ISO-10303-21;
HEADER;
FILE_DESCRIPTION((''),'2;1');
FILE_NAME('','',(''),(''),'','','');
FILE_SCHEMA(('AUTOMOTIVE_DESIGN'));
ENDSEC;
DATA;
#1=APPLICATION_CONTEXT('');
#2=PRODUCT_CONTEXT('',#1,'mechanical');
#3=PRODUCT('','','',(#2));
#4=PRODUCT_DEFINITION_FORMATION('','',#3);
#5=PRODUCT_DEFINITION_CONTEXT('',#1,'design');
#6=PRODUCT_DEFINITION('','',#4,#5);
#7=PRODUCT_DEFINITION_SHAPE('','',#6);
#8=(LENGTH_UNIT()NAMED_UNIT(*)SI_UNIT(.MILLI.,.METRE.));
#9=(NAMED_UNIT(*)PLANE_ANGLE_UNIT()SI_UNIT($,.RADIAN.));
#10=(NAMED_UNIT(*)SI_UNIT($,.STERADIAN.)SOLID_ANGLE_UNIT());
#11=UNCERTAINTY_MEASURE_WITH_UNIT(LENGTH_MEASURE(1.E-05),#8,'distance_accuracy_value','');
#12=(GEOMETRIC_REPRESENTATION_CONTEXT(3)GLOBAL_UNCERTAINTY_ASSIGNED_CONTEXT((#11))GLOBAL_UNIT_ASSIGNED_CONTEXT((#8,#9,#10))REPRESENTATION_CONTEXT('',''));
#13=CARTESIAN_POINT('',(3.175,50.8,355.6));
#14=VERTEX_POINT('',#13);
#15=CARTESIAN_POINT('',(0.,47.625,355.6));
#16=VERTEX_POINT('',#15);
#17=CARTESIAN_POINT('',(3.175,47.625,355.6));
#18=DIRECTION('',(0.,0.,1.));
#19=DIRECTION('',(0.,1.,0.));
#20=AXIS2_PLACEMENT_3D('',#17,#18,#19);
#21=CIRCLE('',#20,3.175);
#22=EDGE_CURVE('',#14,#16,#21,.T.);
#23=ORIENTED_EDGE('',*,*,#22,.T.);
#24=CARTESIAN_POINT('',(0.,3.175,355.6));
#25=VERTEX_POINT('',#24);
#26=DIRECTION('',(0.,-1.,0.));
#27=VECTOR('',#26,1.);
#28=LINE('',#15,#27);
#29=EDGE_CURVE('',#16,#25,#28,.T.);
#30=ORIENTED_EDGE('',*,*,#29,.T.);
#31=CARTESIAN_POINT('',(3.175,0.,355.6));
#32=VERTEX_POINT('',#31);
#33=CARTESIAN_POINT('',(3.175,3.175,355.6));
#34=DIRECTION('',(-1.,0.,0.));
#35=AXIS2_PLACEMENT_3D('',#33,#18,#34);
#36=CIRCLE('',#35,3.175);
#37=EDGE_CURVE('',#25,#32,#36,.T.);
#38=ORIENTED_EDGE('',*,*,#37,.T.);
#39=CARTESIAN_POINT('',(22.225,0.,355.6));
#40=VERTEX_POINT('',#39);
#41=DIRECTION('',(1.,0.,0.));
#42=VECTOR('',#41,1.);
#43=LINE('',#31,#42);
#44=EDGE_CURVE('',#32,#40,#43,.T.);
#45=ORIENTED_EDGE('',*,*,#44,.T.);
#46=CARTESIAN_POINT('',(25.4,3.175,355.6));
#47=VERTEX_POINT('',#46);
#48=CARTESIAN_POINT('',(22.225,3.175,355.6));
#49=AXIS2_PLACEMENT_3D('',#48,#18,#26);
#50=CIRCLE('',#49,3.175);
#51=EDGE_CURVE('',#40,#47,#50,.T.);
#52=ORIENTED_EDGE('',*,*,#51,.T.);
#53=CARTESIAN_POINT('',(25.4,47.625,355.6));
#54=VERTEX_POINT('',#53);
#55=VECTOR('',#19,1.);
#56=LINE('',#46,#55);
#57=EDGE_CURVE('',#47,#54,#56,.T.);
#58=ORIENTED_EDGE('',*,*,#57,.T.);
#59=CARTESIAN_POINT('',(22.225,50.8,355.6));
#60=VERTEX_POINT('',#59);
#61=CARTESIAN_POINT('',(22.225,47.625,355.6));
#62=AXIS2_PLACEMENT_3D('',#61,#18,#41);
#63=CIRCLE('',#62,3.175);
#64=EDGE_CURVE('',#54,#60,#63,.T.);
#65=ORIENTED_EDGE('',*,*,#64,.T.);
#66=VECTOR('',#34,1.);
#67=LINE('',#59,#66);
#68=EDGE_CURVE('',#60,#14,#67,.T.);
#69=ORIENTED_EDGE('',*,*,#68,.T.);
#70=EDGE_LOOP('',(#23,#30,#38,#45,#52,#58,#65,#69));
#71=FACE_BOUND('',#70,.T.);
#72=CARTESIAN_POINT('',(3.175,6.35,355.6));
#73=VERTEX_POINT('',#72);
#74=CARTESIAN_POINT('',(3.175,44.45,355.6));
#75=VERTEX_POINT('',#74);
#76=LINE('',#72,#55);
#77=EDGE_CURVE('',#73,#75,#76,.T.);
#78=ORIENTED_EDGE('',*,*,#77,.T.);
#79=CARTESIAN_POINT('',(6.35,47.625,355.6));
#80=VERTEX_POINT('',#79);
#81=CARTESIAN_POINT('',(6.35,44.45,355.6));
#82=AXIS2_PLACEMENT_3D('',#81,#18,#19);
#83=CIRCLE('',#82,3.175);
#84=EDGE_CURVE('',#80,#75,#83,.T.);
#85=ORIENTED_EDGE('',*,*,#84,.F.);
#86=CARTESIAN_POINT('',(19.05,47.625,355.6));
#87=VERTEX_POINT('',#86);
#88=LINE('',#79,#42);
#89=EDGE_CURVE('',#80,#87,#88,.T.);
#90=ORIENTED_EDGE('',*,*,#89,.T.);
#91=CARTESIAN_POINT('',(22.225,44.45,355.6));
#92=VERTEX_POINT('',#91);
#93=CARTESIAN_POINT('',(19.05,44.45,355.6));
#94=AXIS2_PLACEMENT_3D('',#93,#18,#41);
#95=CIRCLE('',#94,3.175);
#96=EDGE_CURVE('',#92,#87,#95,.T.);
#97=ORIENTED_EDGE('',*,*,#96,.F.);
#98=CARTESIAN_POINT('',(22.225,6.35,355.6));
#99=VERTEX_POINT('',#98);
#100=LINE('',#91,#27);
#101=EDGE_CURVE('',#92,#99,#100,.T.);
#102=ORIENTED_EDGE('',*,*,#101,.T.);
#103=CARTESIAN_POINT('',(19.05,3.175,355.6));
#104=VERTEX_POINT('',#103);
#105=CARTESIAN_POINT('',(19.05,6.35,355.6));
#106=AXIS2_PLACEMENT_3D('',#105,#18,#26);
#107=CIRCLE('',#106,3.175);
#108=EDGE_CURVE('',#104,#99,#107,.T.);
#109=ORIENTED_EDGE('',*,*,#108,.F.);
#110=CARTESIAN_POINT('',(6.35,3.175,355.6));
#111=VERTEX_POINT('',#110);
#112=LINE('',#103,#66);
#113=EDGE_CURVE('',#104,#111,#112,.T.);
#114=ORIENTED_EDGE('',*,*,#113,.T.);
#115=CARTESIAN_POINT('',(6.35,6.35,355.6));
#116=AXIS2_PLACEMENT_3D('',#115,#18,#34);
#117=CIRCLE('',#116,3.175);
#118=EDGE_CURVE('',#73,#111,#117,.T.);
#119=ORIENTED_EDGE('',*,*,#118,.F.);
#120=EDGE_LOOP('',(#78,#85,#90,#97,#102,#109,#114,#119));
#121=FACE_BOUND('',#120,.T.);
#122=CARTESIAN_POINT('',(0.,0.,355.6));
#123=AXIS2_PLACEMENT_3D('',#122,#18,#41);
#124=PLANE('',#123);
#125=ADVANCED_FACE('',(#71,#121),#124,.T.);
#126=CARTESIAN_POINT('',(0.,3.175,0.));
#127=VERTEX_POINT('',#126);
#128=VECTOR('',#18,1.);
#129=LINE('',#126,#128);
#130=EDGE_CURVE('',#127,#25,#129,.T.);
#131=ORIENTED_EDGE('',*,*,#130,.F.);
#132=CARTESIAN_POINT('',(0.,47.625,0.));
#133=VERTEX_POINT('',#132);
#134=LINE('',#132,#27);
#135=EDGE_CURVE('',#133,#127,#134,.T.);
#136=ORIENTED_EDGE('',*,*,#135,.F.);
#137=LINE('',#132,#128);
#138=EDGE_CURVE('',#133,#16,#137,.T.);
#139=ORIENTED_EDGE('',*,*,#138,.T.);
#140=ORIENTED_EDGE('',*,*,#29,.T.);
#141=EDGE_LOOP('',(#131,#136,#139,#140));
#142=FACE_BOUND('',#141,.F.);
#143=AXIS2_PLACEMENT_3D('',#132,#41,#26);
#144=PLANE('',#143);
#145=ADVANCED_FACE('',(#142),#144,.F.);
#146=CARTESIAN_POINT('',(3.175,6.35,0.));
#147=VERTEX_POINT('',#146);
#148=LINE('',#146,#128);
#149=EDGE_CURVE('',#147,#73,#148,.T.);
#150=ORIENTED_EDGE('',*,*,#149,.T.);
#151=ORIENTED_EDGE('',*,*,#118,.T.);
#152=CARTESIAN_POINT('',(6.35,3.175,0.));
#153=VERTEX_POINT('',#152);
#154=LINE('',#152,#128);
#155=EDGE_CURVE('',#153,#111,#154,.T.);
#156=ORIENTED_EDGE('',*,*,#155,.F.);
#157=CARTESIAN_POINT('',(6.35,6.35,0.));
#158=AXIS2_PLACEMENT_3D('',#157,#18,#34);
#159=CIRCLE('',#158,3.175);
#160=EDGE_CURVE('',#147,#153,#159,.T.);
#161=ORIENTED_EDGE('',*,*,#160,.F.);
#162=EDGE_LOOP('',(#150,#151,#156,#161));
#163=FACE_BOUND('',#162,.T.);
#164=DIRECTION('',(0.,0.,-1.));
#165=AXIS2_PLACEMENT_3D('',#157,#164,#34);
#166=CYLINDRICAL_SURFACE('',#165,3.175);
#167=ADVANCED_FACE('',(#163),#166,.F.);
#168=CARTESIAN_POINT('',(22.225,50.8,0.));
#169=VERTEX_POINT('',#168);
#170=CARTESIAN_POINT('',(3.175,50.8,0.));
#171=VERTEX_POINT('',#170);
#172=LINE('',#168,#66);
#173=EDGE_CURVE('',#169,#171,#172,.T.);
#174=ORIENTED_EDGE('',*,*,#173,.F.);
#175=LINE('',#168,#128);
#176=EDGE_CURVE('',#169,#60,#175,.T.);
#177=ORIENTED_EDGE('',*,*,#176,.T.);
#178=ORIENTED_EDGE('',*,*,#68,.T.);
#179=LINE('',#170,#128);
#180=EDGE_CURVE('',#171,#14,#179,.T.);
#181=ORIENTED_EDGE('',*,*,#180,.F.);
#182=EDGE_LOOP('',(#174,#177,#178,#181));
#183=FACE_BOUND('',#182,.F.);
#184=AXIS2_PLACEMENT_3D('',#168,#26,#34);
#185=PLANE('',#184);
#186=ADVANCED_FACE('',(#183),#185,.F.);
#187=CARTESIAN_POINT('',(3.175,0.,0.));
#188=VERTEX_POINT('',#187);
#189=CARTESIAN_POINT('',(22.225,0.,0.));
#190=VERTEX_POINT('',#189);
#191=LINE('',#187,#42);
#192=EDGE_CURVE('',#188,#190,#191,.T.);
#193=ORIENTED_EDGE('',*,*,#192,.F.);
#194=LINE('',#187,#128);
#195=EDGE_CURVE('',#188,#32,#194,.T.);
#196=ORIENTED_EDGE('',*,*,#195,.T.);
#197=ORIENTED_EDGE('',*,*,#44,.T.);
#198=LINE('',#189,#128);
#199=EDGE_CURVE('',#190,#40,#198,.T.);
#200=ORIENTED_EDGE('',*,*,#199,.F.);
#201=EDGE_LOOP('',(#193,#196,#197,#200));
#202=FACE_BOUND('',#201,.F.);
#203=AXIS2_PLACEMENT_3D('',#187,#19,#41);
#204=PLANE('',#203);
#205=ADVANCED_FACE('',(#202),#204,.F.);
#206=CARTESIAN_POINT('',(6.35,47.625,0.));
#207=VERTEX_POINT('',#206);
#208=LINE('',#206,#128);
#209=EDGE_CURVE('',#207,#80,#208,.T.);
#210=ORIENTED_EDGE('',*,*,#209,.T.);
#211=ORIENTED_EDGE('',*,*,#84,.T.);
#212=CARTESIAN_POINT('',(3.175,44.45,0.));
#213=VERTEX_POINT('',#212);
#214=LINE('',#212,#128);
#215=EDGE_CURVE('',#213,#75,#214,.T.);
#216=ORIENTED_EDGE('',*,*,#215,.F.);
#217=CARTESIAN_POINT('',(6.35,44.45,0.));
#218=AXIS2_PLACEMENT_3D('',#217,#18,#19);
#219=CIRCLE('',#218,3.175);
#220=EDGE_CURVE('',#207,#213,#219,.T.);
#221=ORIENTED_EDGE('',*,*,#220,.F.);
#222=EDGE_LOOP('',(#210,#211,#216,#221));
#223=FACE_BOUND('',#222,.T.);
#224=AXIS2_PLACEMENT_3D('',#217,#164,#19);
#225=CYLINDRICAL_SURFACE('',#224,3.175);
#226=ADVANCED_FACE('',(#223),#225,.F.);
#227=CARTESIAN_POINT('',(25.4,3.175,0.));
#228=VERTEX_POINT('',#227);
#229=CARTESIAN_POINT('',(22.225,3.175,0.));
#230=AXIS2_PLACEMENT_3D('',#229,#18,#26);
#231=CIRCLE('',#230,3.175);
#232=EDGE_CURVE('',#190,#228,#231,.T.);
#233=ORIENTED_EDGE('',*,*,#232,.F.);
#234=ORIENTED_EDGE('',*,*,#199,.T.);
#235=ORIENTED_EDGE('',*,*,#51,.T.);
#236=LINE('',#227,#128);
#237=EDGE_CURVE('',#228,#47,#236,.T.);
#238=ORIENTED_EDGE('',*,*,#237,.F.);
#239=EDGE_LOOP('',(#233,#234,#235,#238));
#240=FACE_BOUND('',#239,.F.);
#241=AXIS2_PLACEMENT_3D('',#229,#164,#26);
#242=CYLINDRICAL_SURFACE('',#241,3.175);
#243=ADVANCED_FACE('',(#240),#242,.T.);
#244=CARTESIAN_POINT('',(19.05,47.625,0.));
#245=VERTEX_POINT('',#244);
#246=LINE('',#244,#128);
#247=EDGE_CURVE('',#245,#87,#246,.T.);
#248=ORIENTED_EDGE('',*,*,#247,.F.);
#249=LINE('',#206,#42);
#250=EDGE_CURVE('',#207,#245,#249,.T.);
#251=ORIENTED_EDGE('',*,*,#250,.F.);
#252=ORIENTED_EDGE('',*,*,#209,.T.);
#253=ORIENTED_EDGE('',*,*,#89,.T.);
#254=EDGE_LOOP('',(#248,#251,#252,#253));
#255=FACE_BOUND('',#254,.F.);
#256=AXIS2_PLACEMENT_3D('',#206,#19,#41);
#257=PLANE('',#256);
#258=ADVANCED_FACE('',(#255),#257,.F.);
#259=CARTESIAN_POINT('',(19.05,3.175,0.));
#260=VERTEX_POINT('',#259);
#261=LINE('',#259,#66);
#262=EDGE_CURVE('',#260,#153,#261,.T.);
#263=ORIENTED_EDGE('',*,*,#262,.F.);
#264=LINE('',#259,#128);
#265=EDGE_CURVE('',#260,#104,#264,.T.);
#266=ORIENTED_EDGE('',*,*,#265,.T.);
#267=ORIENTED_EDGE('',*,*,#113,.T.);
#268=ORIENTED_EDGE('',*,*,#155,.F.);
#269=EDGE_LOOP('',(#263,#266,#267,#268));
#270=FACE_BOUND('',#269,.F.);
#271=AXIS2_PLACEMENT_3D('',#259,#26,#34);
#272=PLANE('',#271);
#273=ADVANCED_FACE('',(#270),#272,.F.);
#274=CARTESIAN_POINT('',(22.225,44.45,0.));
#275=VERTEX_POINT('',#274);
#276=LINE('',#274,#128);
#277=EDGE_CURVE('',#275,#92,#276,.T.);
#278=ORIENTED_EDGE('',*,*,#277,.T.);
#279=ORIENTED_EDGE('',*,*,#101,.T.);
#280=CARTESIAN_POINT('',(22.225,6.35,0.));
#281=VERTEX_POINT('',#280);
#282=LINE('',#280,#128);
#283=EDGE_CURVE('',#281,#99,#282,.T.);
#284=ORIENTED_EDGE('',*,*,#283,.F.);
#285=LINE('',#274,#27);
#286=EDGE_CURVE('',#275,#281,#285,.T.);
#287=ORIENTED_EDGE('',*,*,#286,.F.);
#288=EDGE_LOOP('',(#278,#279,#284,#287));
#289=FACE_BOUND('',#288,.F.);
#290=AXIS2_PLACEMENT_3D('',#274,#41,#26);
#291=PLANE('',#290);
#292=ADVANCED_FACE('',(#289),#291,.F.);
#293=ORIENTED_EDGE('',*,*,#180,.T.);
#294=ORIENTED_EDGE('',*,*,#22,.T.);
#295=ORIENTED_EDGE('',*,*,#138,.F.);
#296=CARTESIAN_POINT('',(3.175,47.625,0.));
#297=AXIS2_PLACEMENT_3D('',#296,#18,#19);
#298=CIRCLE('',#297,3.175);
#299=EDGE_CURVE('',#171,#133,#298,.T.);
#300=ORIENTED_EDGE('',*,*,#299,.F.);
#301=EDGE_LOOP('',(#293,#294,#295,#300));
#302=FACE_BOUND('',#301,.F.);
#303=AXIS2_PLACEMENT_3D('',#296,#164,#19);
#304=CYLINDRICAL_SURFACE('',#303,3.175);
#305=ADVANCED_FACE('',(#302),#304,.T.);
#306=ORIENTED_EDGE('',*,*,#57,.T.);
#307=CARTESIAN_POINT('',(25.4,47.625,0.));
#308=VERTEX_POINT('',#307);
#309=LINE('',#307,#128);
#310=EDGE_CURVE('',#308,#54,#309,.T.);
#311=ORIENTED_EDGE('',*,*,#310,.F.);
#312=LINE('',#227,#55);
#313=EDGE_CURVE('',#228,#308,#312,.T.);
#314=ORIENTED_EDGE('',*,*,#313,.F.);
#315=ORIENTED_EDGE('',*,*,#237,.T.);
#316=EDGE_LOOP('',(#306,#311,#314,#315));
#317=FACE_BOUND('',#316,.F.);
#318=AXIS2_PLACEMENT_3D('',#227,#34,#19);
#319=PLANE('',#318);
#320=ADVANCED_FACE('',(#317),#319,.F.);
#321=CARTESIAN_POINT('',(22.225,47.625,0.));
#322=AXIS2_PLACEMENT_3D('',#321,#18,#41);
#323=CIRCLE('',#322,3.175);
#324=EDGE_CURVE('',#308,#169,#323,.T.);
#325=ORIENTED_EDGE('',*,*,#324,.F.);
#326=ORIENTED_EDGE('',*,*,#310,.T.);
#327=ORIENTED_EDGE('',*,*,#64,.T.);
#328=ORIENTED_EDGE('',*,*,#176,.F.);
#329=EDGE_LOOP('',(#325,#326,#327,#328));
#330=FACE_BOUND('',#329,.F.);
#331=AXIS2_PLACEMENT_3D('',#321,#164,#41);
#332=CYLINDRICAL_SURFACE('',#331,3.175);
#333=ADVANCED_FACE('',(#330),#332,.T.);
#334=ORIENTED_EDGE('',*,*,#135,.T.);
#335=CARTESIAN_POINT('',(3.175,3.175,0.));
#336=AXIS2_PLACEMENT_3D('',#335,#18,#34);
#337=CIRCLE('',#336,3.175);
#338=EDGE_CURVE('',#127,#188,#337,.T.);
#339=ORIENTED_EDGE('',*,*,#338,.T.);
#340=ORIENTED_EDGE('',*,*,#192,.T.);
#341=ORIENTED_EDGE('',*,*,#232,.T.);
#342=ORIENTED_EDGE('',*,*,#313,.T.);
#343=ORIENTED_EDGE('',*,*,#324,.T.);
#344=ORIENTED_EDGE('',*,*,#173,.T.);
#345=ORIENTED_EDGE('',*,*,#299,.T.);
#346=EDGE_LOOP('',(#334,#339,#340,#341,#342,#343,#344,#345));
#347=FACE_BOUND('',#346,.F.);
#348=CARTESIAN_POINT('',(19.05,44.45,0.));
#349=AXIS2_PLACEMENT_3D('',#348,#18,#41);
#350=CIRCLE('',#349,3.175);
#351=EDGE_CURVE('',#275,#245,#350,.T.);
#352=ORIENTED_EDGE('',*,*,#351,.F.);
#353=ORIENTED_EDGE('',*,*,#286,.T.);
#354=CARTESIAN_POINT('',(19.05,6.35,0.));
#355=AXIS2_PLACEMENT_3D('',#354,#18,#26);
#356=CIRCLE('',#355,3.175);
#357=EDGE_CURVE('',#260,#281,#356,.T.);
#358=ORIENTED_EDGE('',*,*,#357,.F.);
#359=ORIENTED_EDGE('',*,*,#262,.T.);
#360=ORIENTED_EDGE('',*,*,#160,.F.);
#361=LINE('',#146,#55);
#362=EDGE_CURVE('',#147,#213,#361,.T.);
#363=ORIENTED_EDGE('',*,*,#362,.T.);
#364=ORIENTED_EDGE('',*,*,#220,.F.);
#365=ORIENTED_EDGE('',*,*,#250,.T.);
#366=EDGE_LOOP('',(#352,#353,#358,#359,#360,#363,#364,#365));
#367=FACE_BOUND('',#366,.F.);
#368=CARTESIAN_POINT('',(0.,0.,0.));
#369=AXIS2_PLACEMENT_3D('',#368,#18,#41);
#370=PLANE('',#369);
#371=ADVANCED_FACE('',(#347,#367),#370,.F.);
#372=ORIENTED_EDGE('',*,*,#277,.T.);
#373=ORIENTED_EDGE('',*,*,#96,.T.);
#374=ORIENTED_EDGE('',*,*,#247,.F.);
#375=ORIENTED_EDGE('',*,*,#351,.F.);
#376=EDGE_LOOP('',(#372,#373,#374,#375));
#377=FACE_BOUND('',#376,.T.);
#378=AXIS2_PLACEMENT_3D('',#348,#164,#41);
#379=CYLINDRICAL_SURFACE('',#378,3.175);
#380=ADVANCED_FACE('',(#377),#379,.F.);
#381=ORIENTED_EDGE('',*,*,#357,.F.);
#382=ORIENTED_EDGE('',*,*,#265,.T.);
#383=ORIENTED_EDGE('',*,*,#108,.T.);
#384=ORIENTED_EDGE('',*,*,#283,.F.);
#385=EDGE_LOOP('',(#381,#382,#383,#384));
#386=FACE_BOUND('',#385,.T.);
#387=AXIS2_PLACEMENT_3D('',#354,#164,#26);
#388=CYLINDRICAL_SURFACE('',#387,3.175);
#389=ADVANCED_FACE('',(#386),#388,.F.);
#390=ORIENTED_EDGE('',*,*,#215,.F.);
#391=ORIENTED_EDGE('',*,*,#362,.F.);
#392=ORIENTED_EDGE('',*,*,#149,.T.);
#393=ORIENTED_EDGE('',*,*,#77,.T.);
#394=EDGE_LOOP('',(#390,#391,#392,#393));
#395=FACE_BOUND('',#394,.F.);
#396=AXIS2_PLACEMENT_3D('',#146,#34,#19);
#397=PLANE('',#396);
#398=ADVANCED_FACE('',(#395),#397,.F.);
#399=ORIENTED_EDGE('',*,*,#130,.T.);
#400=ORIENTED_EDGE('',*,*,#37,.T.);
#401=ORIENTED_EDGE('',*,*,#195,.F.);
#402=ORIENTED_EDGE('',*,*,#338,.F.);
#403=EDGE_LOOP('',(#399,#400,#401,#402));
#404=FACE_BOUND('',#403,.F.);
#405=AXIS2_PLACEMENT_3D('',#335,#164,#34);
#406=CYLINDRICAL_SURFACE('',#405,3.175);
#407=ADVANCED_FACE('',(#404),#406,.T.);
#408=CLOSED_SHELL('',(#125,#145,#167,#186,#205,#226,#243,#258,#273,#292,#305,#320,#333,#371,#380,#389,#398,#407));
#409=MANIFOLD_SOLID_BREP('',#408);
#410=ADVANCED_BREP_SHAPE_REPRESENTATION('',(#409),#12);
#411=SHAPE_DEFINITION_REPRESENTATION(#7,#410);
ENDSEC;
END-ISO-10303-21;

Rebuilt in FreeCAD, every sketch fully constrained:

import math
import FreeCAD as App
import Part
import Sketcher
from FreeCAD import Vector
Q = App.Units.Quantity

doc = App.newDocument("Part")
body = doc.addObject("PartDesign::Body", "Body")

# Sketch on XY plane
sketch1 = body.newObject("Sketcher::SketchObject", "Sketch")
sketch1.AttachmentSupport = (doc.getObject("XY_Plane"), [""])
sketch1.MapMode = "FlatFace"
sketch1.addGeometry(Part.ArcOfCircle(Part.Circle(Vector(3.2, 3.2, 0), Vector(0, 0, 1), 3.2), math.radians(180), math.radians(270)), False)
sketch1.addGeometry(Part.LineSegment(Vector(3.2, 0, 0), Vector(22.2, 0, 0)), False)
sketch1.addGeometry(Part.ArcOfCircle(Part.Circle(Vector(22.2, 3.2, 0), Vector(0, 0, 1), 3.2), math.radians(-90), math.radians(0)), False)
sketch1.addGeometry(Part.LineSegment(Vector(25.4, 3.2, 0), Vector(25.4, 47.6, 0)), False)
sketch1.addGeometry(Part.ArcOfCircle(Part.Circle(Vector(22.2, 47.6, 0), Vector(0, 0, 1), 3.2), math.radians(0), math.radians(90)), False)
sketch1.addGeometry(Part.LineSegment(Vector(22.2, 50.8, 0), Vector(3.2, 50.8, 0)), False)
sketch1.addGeometry(Part.ArcOfCircle(Part.Circle(Vector(3.2, 47.6, 0), Vector(0, 0, 1), 3.2), math.radians(90), math.radians(180)), False)
sketch1.addGeometry(Part.LineSegment(Vector(0, 47.6, 0), Vector(0, 3.2, 0)), False)
sketch1.addGeometry(Part.ArcOfCircle(Part.Circle(Vector(6.3, 44.5, 0), Vector(0, 0, 1), 3.2), math.radians(90), math.radians(180)), False)
sketch1.addGeometry(Part.LineSegment(Vector(6.3, 47.6, 0), Vector(19.1, 47.6, 0)), False)
sketch1.addGeometry(Part.ArcOfCircle(Part.Circle(Vector(19.1, 44.5, 0), Vector(0, 0, 1), 3.2), math.radians(0), math.radians(90)), False)
sketch1.addGeometry(Part.LineSegment(Vector(22.2, 44.5, 0), Vector(22.2, 6.3, 0)), False)
sketch1.addGeometry(Part.ArcOfCircle(Part.Circle(Vector(19.1, 6.3, 0), Vector(0, 0, 1), 3.2), math.radians(-90), math.radians(0)), False)
sketch1.addGeometry(Part.LineSegment(Vector(19.1, 3.2, 0), Vector(6.3, 3.2, 0)), False)
sketch1.addGeometry(Part.ArcOfCircle(Part.Circle(Vector(6.3, 6.3, 0), Vector(0, 0, 1), 3.2), math.radians(180), math.radians(270)), False)
sketch1.addGeometry(Part.LineSegment(Vector(3.2, 6.3, 0), Vector(3.2, 44.5, 0)), False)
sketch1.addConstraint(Sketcher.Constraint("Tangent", 0, 2, 1, 1))
sketch1.addConstraint(Sketcher.Constraint("Tangent", 1, 2, 2, 1))
sketch1.addConstraint(Sketcher.Constraint("Tangent", 2, 2, 3, 1))
sketch1.addConstraint(Sketcher.Constraint("Tangent", 3, 2, 4, 1))
sketch1.addConstraint(Sketcher.Constraint("Tangent", 4, 2, 5, 1))
sketch1.addConstraint(Sketcher.Constraint("Tangent", 5, 2, 6, 1))
sketch1.addConstraint(Sketcher.Constraint("Tangent", 6, 2, 7, 1))
sketch1.addConstraint(Sketcher.Constraint("Tangent", 7, 2, 0, 1))
sketch1.addConstraint(Sketcher.Constraint("Tangent", 8, 1, 9, 1))
sketch1.addConstraint(Sketcher.Constraint("Tangent", 9, 2, 10, 2))
sketch1.addConstraint(Sketcher.Constraint("Tangent", 10, 1, 11, 1))
sketch1.addConstraint(Sketcher.Constraint("Tangent", 11, 2, 12, 2))
sketch1.addConstraint(Sketcher.Constraint("Tangent", 12, 1, 13, 1))
sketch1.addConstraint(Sketcher.Constraint("Tangent", 13, 2, 14, 2))
sketch1.addConstraint(Sketcher.Constraint("Tangent", 14, 1, 15, 1))
sketch1.addConstraint(Sketcher.Constraint("Tangent", 15, 2, 8, 2))
sketch1.addConstraint(Sketcher.Constraint("Horizontal", 1))
sketch1.addConstraint(Sketcher.Constraint("Vertical", 3))
sketch1.addConstraint(Sketcher.Constraint("Horizontal", 5))
sketch1.addConstraint(Sketcher.Constraint("Vertical", 7))
sketch1.addConstraint(Sketcher.Constraint("Horizontal", 9))
sketch1.addConstraint(Sketcher.Constraint("Vertical", 11))
sketch1.addConstraint(Sketcher.Constraint("Horizontal", 13))
sketch1.addConstraint(Sketcher.Constraint("Vertical", 15))
sketch1.addConstraint(Sketcher.Constraint("Equal", 0, 2))
sketch1.addConstraint(Sketcher.Constraint("Equal", 2, 4))
sketch1.addConstraint(Sketcher.Constraint("Equal", 4, 6))
sketch1.addConstraint(Sketcher.Constraint("Equal", 6, 8))
sketch1.addConstraint(Sketcher.Constraint("Equal", 8, 10))
sketch1.addConstraint(Sketcher.Constraint("Equal", 10, 12))
sketch1.addConstraint(Sketcher.Constraint("Equal", 12, 14))
sketch1.addConstraint(Sketcher.Constraint("PointOnObject", 0, 2, -1))
sketch1.addConstraint(Sketcher.Constraint("PointOnObject", 6, 2, -2))
sketch1.addConstraint(Sketcher.Constraint("Horizontal", 6, 2, 8, 1))
sketch1.addConstraint(Sketcher.Constraint("Horizontal", 7, 2, 12, 1))
sketch1.addConstraint(Sketcher.Constraint("Vertical", 4, 2, 10, 1))
sketch1.addConstraint(Sketcher.Constraint("Vertical", 5, 2, 14, 1))
sketch1.addConstraint(Sketcher.Constraint("DistanceX", -1, 1, 2, 2, Q("1 in")))
sketch1.addConstraint(Sketcher.Constraint("DistanceY", -1, 1, 4, 2, Q("2 in")))
sketch1.addConstraint(Sketcher.Constraint("Radius", 0, Q("0.125 in")))
pad1 = body.newObject("PartDesign::Pad", "Pad")
pad1.Profile = sketch1
pad1.Length = Q("14 in")

doc.recompute()
